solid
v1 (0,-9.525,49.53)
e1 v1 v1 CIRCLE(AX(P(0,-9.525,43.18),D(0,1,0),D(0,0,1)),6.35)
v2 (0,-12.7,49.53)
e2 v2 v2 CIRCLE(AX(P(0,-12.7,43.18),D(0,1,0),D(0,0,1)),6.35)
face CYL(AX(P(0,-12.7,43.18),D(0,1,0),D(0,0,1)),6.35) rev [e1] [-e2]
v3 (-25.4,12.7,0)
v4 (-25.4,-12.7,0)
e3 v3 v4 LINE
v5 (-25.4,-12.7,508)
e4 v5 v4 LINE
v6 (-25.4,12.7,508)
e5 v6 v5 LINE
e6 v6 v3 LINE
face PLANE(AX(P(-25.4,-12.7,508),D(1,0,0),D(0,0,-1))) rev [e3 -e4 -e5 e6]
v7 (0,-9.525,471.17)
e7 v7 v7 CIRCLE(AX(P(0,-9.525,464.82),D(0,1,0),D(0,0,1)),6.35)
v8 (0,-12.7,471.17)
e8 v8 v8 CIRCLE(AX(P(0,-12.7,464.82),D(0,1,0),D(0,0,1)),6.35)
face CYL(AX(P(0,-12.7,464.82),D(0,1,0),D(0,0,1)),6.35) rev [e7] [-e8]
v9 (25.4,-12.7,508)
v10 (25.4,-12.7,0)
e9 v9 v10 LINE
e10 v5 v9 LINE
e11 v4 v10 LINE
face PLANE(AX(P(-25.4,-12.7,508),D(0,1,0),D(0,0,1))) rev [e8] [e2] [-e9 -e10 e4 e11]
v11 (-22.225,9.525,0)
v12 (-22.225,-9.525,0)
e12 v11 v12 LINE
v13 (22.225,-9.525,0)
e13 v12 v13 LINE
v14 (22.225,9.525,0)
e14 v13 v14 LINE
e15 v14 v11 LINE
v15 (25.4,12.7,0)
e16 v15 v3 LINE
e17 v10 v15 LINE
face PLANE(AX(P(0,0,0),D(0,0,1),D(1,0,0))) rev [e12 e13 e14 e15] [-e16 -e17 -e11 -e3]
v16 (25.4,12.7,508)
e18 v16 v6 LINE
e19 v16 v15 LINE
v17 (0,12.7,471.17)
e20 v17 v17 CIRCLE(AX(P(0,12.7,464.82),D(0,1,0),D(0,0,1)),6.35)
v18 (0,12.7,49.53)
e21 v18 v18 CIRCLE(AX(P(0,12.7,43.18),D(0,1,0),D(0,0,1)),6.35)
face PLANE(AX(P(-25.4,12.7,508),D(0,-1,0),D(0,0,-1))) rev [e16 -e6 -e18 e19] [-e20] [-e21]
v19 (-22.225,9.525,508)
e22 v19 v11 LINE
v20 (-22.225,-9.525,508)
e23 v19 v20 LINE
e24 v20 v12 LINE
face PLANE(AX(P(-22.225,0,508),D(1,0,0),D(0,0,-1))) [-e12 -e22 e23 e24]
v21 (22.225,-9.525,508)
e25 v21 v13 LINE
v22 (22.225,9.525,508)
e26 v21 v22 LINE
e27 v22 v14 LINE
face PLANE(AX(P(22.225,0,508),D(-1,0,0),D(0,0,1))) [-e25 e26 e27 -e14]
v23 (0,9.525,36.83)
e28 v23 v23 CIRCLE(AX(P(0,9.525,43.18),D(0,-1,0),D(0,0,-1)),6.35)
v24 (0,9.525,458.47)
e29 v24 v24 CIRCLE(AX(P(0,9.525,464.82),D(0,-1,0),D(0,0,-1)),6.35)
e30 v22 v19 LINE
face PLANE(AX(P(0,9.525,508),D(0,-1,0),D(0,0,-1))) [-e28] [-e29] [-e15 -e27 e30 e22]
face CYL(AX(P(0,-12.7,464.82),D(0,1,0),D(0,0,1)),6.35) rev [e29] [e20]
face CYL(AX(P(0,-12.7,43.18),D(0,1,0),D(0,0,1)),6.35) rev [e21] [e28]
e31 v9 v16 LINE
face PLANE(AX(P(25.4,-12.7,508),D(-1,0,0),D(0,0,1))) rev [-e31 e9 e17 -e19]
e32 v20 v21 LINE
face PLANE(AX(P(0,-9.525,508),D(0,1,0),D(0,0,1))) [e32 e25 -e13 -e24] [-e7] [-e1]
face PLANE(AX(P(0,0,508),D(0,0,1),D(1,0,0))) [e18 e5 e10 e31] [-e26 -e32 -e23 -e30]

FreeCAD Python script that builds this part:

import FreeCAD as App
import Part
import Sketcher

V = App.Vector
Q = App.Units.Quantity


def add_polygon(sketch, points):
    """Adds a closed chain of lines whose ends are joined by coincident constraints."""
    first, n = sketch.GeometryCount, len(points)
    for a, b in zip(points, points[1:] + points[:1]):
        sketch.addGeometry(Part.LineSegment(App.Vector(*a, 0), App.Vector(*b, 0)), False)
    for i in range(n):
        sketch.addConstraint(Sketcher.Constraint("Coincident", first + i, 2, first + (i + 1) % n, 1))

doc = App.newDocument("Part")
body = doc.addObject("PartDesign::Body", "Body")

# Sketch on XY plane
sketch1 = body.newObject("Sketcher::SketchObject", "Sketch")
sketch1.AttachmentSupport = (doc.getObject("XY_Plane"), [""])
sketch1.MapMode = "FlatFace"
add_polygon(sketch1, [(-25, 13), (-25, -13), (25, -13), (25, 13)])  # lines 0-3
add_polygon(sketch1, [(22, -10), (-22, -10), (-22, 10), (22, 10)])  # lines 4-7
sketch1.addConstraint(Sketcher.Constraint("Vertical", 0))
sketch1.addConstraint(Sketcher.Constraint("Horizontal", 1))
sketch1.addConstraint(Sketcher.Constraint("Vertical", 2))
sketch1.addConstraint(Sketcher.Constraint("Horizontal", 3))
sketch1.addConstraint(Sketcher.Constraint("Horizontal", 4))
sketch1.addConstraint(Sketcher.Constraint("Vertical", 5))
sketch1.addConstraint(Sketcher.Constraint("Horizontal", 6))
sketch1.addConstraint(Sketcher.Constraint("Vertical", 7))
sketch1.addConstraint(Sketcher.Constraint("Symmetric", 0, 2, 2, 2, -1, 1))
sketch1.addConstraint(Sketcher.Constraint("Symmetric", 4, 2, 6, 2, -1, 1))
sketch1.addConstraint(Sketcher.Constraint("DistanceX", 1, 1, 1, 2, Q("2 in")))
sketch1.addConstraint(Sketcher.Constraint("DistanceY", 0, 2, 0, 1, Q("1 in")))
sketch1.addConstraint(Sketcher.Constraint("DistanceX", 4, 2, 4, 1, Q("1.75 in")))
sketch1.addConstraint(Sketcher.Constraint("DistanceY", 5, 1, 5, 2, Q("0.75 in")))
pad1 = body.newObject("PartDesign::Pad", "Pad")
pad1.Profile = sketch1
pad1.Length = Q("20 in")

# Sketch on XZ plane
sketch2 = body.newObject("Sketcher::SketchObject", "Sketch001")
sketch2.AttachmentSupport = (doc.getObject("XZ_Plane"), [""])
sketch2.MapMode = "FlatFace"
sketch2.AttachmentOffset = App.Placement(V(0, 0, -0.5 * 25.4), App.Rotation())
sketch2.addGeometry(Part.Circle(V(0, 465, 0), V(0, 0, 1), 6), False)
sketch2.addGeometry(Part.Circle(V(0, 43, 0), V(0, 0, 1), 6), False)
sketch2.addConstraint(Sketcher.Constraint("Equal", 0, 1))
sketch2.addConstraint(Sketcher.Constraint("PointOnObject", 0, 3, -2))
sketch2.addConstraint(Sketcher.Constraint("PointOnObject", 1, 3, -2))
sketch2.addConstraint(Sketcher.Constraint("Diameter", 0, Q("0.5 in")))
sketch2.addConstraint(Sketcher.Constraint("DistanceY", -1, 1, 0, 3, Q("18.3 in")))
sketch2.addConstraint(Sketcher.Constraint("DistanceY", -1, 1, 1, 3, Q("1.7 in")))
pocket1 = body.newObject("PartDesign::Pocket", "Pocket")
pocket1.Profile = sketch2
pocket1.Type = "ThroughAll"
pocket1.Reversed = True

doc.recompute()
